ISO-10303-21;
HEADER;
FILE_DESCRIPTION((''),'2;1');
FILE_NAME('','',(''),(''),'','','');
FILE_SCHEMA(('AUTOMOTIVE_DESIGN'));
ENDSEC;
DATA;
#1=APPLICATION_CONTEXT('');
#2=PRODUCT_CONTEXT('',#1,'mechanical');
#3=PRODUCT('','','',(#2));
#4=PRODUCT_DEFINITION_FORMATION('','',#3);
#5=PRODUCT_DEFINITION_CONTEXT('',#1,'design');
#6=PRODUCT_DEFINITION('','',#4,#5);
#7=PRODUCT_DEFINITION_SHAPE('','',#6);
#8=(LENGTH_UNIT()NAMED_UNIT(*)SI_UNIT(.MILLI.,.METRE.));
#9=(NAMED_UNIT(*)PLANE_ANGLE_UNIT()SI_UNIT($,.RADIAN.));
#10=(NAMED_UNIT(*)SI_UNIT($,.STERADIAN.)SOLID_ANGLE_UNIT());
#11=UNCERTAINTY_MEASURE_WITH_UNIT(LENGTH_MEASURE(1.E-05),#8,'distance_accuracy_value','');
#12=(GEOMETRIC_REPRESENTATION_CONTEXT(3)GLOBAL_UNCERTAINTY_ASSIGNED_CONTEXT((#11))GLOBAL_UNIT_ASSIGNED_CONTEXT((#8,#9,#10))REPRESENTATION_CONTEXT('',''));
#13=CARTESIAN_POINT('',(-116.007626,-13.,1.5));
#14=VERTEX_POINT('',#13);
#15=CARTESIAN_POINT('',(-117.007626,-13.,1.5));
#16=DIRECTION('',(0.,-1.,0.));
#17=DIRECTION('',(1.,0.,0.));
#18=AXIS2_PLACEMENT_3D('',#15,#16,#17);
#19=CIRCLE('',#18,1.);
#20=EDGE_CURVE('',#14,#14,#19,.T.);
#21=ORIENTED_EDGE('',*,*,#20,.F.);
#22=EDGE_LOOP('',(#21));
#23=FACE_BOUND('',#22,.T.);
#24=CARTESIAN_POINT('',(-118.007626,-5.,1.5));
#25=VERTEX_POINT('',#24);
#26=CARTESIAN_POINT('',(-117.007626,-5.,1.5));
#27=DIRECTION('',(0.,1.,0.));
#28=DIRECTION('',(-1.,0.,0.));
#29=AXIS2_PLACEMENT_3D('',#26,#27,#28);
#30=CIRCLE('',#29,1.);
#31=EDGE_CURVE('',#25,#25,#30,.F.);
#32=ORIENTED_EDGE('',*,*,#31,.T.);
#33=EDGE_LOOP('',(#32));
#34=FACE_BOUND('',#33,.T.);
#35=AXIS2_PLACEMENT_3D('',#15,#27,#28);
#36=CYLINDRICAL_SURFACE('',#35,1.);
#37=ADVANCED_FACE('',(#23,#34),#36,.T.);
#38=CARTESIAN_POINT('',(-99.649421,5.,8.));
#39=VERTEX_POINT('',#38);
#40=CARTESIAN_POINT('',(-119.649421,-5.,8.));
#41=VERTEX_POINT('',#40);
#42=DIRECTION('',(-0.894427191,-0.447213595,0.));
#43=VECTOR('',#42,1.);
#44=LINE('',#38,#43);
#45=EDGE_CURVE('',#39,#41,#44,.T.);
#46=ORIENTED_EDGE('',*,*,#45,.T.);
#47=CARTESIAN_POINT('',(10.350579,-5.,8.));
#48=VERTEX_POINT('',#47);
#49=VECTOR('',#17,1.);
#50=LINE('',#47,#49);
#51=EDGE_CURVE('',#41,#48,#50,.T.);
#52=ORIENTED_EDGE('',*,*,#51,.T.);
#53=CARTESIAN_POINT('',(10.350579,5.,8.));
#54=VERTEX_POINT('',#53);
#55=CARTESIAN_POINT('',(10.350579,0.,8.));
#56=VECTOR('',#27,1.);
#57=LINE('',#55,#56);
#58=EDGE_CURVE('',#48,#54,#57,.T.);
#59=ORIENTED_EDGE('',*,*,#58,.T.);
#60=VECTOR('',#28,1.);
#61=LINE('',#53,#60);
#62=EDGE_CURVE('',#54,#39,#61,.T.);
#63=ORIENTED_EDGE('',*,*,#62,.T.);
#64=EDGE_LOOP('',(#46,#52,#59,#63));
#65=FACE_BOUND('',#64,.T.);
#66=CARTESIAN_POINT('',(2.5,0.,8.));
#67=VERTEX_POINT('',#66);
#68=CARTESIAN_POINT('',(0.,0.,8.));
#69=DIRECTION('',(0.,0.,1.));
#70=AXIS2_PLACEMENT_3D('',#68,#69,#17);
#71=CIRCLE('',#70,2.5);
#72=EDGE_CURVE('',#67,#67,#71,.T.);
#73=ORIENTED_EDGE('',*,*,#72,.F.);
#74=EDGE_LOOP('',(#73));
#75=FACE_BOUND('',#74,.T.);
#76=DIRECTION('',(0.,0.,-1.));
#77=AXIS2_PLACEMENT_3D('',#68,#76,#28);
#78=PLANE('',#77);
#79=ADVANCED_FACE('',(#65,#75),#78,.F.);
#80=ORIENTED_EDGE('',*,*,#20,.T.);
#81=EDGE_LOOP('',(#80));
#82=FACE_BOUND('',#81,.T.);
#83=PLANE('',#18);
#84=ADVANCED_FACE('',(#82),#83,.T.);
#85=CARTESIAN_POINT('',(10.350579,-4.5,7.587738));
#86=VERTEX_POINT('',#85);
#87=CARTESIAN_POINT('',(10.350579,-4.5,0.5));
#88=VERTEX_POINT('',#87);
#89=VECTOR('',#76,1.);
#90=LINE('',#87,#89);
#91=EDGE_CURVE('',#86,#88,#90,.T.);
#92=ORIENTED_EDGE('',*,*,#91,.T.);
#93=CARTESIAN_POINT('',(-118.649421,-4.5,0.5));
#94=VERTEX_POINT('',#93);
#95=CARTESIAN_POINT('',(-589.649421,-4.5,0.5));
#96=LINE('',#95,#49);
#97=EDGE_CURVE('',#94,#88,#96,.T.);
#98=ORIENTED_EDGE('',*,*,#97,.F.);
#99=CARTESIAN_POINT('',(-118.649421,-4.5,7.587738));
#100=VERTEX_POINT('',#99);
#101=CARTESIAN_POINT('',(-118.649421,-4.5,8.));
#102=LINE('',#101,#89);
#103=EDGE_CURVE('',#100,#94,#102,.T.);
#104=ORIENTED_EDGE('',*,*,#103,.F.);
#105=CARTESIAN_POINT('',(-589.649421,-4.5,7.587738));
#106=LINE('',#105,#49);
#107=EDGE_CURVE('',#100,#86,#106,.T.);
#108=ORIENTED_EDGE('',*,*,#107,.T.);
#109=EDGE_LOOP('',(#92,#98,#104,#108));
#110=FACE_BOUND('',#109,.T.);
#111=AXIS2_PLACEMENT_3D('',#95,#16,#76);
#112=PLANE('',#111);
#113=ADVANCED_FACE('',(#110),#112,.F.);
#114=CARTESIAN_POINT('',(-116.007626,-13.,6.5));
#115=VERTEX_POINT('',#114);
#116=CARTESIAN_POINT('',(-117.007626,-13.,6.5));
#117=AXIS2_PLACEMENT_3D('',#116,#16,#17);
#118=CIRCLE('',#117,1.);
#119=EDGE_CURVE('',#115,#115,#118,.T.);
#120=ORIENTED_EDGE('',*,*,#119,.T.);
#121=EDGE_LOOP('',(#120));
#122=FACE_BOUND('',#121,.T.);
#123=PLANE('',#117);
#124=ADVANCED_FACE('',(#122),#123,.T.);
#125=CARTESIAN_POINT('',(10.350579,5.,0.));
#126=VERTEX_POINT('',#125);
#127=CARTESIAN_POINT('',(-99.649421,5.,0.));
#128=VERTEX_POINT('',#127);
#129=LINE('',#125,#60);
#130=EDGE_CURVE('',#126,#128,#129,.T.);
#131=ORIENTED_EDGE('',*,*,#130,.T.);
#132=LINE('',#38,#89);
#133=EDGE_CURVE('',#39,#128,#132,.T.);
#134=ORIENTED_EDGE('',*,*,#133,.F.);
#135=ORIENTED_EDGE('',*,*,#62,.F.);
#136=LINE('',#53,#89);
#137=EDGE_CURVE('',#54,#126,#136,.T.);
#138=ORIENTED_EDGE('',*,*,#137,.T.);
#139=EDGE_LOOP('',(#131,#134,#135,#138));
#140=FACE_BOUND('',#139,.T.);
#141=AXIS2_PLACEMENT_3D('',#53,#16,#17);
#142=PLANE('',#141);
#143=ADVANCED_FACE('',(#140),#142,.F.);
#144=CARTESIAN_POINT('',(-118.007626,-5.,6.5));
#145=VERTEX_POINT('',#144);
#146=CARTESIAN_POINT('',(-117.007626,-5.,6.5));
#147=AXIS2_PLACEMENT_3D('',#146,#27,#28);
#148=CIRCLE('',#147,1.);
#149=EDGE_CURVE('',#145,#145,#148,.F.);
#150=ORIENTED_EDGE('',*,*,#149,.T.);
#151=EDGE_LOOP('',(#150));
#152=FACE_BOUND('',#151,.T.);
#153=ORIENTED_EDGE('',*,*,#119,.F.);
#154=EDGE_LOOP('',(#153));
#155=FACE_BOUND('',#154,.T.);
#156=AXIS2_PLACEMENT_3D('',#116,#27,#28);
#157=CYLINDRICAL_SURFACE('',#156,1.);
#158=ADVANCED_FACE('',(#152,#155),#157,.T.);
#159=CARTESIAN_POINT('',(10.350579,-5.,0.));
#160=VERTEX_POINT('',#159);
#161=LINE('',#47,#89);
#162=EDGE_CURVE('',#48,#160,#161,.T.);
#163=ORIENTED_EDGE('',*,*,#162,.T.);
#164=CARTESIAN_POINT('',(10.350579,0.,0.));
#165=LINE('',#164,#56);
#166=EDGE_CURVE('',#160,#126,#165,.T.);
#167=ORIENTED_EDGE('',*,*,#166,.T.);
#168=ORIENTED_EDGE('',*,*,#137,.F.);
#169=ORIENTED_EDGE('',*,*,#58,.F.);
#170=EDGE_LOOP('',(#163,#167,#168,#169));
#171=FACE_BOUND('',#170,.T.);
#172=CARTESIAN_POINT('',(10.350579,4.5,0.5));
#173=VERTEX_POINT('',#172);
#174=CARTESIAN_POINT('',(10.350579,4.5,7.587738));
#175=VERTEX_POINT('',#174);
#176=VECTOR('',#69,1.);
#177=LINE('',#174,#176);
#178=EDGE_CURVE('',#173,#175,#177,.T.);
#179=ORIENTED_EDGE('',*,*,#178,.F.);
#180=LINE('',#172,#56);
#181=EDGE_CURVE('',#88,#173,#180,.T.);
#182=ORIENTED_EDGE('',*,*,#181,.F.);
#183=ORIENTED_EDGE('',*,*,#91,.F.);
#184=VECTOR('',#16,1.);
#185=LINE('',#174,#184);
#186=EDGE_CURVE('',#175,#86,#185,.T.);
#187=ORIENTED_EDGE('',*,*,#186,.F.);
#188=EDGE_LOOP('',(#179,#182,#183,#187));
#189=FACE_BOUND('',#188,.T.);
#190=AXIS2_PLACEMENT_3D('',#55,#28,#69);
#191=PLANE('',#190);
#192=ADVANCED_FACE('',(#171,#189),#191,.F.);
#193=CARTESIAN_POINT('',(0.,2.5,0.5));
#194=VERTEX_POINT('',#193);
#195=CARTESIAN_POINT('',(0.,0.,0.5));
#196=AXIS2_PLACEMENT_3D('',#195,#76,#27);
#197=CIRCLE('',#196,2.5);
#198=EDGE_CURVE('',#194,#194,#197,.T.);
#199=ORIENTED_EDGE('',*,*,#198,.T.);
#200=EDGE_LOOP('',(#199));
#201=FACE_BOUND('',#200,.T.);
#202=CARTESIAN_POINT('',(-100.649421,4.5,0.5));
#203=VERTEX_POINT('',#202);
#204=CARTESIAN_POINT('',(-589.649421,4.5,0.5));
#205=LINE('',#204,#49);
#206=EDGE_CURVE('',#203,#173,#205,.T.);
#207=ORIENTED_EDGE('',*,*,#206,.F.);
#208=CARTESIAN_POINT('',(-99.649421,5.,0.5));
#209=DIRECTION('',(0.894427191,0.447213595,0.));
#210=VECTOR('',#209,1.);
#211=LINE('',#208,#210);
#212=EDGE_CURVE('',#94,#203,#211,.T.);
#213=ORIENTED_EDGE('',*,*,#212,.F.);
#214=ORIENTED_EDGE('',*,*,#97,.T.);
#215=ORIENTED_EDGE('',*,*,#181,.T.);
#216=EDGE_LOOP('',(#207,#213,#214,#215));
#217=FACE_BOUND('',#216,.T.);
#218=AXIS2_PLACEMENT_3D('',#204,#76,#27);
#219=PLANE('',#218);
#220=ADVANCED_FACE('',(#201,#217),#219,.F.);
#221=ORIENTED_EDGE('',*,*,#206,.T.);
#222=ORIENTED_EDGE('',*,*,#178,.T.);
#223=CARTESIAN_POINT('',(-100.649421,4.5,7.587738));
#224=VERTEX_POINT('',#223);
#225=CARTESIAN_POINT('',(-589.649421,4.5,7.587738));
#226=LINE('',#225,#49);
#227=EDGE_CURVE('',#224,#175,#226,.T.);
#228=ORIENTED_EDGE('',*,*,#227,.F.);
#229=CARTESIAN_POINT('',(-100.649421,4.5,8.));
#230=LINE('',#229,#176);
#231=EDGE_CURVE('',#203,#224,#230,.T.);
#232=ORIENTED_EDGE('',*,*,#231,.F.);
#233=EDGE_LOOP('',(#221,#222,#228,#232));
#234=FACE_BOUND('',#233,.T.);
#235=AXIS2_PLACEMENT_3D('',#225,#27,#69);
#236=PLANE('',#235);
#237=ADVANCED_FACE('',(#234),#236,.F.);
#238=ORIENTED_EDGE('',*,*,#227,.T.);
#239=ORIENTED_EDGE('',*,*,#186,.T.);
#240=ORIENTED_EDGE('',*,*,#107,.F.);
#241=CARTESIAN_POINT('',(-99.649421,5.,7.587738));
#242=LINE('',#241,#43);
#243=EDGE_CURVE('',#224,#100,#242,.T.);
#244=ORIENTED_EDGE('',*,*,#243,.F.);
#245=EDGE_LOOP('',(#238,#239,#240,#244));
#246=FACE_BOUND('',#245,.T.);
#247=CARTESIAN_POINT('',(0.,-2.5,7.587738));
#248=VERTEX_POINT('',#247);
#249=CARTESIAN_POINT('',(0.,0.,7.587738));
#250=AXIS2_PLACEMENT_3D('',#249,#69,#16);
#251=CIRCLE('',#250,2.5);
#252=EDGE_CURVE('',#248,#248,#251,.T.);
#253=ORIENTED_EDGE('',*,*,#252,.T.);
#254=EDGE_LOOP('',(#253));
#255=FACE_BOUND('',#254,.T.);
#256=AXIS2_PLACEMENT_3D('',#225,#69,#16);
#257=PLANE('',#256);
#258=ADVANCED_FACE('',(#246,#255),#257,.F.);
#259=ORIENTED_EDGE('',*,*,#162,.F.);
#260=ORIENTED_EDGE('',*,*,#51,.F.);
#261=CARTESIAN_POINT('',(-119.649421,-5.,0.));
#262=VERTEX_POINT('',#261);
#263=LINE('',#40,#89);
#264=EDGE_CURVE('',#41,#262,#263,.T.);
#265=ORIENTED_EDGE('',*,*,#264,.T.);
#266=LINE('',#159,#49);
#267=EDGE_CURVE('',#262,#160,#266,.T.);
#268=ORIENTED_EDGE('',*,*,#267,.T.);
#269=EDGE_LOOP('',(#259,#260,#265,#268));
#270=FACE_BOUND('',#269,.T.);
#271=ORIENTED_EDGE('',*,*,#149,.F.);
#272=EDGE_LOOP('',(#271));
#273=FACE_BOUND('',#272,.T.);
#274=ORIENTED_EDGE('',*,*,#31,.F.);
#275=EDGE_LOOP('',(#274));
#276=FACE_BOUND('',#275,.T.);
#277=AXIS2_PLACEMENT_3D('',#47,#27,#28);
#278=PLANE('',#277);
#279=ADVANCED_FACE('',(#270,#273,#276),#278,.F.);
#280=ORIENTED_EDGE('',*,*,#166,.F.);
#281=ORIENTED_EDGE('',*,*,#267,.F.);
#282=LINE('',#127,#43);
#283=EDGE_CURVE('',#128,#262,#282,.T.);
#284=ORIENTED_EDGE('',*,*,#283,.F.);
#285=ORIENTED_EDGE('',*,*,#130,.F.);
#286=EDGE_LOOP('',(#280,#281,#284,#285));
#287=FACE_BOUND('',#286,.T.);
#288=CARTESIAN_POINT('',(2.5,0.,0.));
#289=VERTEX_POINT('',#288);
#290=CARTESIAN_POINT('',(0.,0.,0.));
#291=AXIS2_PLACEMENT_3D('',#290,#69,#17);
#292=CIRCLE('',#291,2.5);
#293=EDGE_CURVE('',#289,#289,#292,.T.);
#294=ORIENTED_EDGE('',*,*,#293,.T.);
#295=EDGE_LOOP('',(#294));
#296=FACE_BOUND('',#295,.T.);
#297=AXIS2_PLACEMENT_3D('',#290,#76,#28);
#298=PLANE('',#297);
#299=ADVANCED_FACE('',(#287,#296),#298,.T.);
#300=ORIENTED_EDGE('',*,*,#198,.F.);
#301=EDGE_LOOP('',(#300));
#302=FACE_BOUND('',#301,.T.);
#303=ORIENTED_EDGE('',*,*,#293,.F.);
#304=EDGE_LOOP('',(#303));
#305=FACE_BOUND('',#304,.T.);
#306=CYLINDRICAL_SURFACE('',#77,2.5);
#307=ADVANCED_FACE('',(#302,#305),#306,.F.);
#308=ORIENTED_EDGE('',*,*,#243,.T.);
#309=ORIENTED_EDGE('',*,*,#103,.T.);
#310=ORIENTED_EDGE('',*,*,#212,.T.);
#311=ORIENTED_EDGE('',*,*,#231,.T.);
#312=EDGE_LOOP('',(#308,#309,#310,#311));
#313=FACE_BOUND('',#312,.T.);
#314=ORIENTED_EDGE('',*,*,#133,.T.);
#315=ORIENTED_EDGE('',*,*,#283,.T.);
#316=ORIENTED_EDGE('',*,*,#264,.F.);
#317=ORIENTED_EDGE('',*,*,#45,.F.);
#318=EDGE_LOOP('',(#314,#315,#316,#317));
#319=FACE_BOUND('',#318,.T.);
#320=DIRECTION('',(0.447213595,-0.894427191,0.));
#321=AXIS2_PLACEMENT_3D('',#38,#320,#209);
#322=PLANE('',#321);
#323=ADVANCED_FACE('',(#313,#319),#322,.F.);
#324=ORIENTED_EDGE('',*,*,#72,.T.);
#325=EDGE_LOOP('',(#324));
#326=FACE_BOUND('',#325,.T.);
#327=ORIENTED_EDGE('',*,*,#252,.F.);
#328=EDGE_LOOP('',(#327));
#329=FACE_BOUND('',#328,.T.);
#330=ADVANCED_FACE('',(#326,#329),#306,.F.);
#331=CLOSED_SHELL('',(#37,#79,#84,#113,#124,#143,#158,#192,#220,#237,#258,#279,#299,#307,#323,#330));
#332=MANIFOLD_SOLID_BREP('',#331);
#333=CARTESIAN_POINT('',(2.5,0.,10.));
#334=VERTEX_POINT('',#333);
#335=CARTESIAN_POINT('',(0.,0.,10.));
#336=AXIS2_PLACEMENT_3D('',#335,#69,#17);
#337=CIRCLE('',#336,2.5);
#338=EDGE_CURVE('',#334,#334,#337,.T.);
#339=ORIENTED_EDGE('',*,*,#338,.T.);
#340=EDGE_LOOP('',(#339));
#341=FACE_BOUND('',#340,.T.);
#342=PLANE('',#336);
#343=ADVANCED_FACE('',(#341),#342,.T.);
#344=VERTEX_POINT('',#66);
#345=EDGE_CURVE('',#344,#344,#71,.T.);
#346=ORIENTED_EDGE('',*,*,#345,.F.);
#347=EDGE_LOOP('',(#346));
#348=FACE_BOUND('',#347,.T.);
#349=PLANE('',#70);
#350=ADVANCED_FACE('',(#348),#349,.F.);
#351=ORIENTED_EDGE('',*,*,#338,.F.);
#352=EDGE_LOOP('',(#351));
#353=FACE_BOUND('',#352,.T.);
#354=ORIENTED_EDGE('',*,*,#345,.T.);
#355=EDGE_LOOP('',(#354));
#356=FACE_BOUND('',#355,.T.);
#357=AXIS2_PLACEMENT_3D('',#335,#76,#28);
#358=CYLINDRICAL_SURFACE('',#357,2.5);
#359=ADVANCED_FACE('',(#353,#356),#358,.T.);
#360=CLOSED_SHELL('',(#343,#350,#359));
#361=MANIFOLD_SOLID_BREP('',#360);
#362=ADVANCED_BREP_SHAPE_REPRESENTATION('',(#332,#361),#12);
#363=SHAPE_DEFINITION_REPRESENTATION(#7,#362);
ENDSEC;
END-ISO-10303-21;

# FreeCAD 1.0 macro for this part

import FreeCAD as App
import Part
import Sketcher

V = App.Vector


def add_polygon(sketch, points):
    """Adds a closed chain of lines whose ends are joined by coincident constraints."""
    first, n = sketch.GeometryCount, len(points)
    for a, b in zip(points, points[1:] + points[:1]):
        sketch.addGeometry(Part.LineSegment(App.Vector(*a, 0), App.Vector(*b, 0)), False)
    for i in range(n):
        sketch.addConstraint(Sketcher.Constraint("Coincident", first + i, 2, first + (i + 1) % n, 1))

doc = App.newDocument("Part")
body = doc.addObject("PartDesign::Body", "Body")

sketch1 = body.newObject("Sketcher::SketchObject", "Sketch")
sketch1.AttachmentSupport = (doc.getObject("XY_Plane"), [""])
sketch1.MapMode = "FlatFace"
add_polygon(sketch1, [(10.4, 5), (-99.6, 5), (-119.6, -5), (10.4, -5)])
sketch1.addGeometry(Part.Circle(V(0, 0, 0), V(0, 0, 1), 2.5), False)
sketch1.addConstraint(Sketcher.Constraint("Horizontal", 0))
sketch1.addConstraint(Sketcher.Constraint("Horizontal", 2))
sketch1.addConstraint(Sketcher.Constraint("Vertical", 3))
sketch1.addConstraint(Sketcher.Constraint("Coincident", 4, 3, -1, 1))
sketch1.addConstraint(Sketcher.Constraint("Diameter", 4, 5.0))
sketch1.addConstraint(Sketcher.Constraint("DistanceX", 0, 2, 0, 1, 110.0))
sketch1.addConstraint(Sketcher.Constraint("DistanceX", 2, 1, 2, 2, 130.0))
sketch1.addConstraint(Sketcher.Constraint("DistanceY", 3, 1, 3, 2, 10.0))
sketch1.addConstraint(Sketcher.Constraint("DistanceY", -1, 1, 0, 2, 5.0))
sketch1.addConstraint(Sketcher.Constraint("DistanceX", 0, 2, -1, 1, 99.649421))
pad1 = body.newObject("PartDesign::Pad", "Pad")
pad1.Profile = sketch1
pad1.Length = 8

sketch2 = body.newObject("Sketcher::SketchObject", "Sketch001")
sketch2.AttachmentSupport = (doc.getObject("YZ_Plane"), [""])
sketch2.MapMode = "FlatFace"
sketch2.AttachmentOffset = App.Placement(V(0, 0, 10.350579), App.Rotation())
add_polygon(sketch2, [(4, 8), (-4, 8), (-4, 0), (4, 0)])
sketch2.addConstraint(Sketcher.Constraint("Horizontal", 0))
sketch2.addConstraint(Sketcher.Constraint("Vertical", 1))
sketch2.addConstraint(Sketcher.Constraint("Horizontal", 2))
sketch2.addConstraint(Sketcher.Constraint("Vertical", 3))
sketch2.addConstraint(Sketcher.Constraint("DistanceX", 0, 2, 0, 1, 9.0))
sketch2.addConstraint(Sketcher.Constraint("DistanceX", 0, 2, -1, 1, 4.5))
sketch2.addConstraint(Sketcher.Constraint("DistanceY", -1, 1, 1, 2, 0.5))
sketch2.addConstraint(Sketcher.Constraint("DistanceY", 1, 2, 1, 1, 7.087738))
pocket1 = body.newObject("PartDesign::Pocket", "Pocket")
pocket1.Profile = sketch2
pocket1.Length = 600

sketch3 = body.newObject("Sketcher::SketchObject", "Sketch002")
sketch3.AttachmentSupport = (doc.getObject("XZ_Plane"), [""])
sketch3.MapMode = "FlatFace"
sketch3.AttachmentOffset = App.Placement(V(0, 0, 5), App.Rotation())
sketch3.addGeometry(Part.Circle(V(-117, 6.5, 0), V(0, 0, 1), 1), False)
sketch3.addGeometry(Part.Circle(V(-117, 1.5, 0), V(0, 0, 1), 1), False)
sketch3.addConstraint(Sketcher.Constraint("Equal", 0, 1))
sketch3.addConstraint(Sketcher.Constraint("Vertical", 0, 3, 1, 3))
sketch3.addConstraint(Sketcher.Constraint("Diameter", 0, 2.0))
sketch3.addConstraint(Sketcher.Constraint("DistanceY", 1, 3, 0, 3, 5.0))
sketch3.addConstraint(Sketcher.Constraint("DistanceY", -1, 1, 0, 3, 6.5))
sketch3.addConstraint(Sketcher.Constraint("DistanceX", 0, 3, -1, 1, 117.007626))
pad2 = body.newObject("PartDesign::Pad", "Pad001")
pad2.Profile = sketch3
pad2.Length = 8
body2 = doc.addObject("PartDesign::Body", "Body001")

sketch4 = body2.newObject("Sketcher::SketchObject", "Sketch003")
sketch4.AttachmentSupport = (doc.getObject("XY_Plane001"), [""])
sketch4.MapMode = "FlatFace"
sketch4.AttachmentOffset = App.Placement(V(0, 0, 8), App.Rotation())
sketch4.addGeometry(Part.Circle(V(0, 0, 0), V(0, 0, 1), 2.5), False)
sketch4.addConstraint(Sketcher.Constraint("Coincident", 0, 3, -1, 1))
sketch4.addConstraint(Sketcher.Constraint("Diameter", 0, 5.0))
pad3 = body2.newObject("PartDesign::Pad", "Pad002")
pad3.Profile = sketch4
pad3.Length = 2

doc.recompute()
